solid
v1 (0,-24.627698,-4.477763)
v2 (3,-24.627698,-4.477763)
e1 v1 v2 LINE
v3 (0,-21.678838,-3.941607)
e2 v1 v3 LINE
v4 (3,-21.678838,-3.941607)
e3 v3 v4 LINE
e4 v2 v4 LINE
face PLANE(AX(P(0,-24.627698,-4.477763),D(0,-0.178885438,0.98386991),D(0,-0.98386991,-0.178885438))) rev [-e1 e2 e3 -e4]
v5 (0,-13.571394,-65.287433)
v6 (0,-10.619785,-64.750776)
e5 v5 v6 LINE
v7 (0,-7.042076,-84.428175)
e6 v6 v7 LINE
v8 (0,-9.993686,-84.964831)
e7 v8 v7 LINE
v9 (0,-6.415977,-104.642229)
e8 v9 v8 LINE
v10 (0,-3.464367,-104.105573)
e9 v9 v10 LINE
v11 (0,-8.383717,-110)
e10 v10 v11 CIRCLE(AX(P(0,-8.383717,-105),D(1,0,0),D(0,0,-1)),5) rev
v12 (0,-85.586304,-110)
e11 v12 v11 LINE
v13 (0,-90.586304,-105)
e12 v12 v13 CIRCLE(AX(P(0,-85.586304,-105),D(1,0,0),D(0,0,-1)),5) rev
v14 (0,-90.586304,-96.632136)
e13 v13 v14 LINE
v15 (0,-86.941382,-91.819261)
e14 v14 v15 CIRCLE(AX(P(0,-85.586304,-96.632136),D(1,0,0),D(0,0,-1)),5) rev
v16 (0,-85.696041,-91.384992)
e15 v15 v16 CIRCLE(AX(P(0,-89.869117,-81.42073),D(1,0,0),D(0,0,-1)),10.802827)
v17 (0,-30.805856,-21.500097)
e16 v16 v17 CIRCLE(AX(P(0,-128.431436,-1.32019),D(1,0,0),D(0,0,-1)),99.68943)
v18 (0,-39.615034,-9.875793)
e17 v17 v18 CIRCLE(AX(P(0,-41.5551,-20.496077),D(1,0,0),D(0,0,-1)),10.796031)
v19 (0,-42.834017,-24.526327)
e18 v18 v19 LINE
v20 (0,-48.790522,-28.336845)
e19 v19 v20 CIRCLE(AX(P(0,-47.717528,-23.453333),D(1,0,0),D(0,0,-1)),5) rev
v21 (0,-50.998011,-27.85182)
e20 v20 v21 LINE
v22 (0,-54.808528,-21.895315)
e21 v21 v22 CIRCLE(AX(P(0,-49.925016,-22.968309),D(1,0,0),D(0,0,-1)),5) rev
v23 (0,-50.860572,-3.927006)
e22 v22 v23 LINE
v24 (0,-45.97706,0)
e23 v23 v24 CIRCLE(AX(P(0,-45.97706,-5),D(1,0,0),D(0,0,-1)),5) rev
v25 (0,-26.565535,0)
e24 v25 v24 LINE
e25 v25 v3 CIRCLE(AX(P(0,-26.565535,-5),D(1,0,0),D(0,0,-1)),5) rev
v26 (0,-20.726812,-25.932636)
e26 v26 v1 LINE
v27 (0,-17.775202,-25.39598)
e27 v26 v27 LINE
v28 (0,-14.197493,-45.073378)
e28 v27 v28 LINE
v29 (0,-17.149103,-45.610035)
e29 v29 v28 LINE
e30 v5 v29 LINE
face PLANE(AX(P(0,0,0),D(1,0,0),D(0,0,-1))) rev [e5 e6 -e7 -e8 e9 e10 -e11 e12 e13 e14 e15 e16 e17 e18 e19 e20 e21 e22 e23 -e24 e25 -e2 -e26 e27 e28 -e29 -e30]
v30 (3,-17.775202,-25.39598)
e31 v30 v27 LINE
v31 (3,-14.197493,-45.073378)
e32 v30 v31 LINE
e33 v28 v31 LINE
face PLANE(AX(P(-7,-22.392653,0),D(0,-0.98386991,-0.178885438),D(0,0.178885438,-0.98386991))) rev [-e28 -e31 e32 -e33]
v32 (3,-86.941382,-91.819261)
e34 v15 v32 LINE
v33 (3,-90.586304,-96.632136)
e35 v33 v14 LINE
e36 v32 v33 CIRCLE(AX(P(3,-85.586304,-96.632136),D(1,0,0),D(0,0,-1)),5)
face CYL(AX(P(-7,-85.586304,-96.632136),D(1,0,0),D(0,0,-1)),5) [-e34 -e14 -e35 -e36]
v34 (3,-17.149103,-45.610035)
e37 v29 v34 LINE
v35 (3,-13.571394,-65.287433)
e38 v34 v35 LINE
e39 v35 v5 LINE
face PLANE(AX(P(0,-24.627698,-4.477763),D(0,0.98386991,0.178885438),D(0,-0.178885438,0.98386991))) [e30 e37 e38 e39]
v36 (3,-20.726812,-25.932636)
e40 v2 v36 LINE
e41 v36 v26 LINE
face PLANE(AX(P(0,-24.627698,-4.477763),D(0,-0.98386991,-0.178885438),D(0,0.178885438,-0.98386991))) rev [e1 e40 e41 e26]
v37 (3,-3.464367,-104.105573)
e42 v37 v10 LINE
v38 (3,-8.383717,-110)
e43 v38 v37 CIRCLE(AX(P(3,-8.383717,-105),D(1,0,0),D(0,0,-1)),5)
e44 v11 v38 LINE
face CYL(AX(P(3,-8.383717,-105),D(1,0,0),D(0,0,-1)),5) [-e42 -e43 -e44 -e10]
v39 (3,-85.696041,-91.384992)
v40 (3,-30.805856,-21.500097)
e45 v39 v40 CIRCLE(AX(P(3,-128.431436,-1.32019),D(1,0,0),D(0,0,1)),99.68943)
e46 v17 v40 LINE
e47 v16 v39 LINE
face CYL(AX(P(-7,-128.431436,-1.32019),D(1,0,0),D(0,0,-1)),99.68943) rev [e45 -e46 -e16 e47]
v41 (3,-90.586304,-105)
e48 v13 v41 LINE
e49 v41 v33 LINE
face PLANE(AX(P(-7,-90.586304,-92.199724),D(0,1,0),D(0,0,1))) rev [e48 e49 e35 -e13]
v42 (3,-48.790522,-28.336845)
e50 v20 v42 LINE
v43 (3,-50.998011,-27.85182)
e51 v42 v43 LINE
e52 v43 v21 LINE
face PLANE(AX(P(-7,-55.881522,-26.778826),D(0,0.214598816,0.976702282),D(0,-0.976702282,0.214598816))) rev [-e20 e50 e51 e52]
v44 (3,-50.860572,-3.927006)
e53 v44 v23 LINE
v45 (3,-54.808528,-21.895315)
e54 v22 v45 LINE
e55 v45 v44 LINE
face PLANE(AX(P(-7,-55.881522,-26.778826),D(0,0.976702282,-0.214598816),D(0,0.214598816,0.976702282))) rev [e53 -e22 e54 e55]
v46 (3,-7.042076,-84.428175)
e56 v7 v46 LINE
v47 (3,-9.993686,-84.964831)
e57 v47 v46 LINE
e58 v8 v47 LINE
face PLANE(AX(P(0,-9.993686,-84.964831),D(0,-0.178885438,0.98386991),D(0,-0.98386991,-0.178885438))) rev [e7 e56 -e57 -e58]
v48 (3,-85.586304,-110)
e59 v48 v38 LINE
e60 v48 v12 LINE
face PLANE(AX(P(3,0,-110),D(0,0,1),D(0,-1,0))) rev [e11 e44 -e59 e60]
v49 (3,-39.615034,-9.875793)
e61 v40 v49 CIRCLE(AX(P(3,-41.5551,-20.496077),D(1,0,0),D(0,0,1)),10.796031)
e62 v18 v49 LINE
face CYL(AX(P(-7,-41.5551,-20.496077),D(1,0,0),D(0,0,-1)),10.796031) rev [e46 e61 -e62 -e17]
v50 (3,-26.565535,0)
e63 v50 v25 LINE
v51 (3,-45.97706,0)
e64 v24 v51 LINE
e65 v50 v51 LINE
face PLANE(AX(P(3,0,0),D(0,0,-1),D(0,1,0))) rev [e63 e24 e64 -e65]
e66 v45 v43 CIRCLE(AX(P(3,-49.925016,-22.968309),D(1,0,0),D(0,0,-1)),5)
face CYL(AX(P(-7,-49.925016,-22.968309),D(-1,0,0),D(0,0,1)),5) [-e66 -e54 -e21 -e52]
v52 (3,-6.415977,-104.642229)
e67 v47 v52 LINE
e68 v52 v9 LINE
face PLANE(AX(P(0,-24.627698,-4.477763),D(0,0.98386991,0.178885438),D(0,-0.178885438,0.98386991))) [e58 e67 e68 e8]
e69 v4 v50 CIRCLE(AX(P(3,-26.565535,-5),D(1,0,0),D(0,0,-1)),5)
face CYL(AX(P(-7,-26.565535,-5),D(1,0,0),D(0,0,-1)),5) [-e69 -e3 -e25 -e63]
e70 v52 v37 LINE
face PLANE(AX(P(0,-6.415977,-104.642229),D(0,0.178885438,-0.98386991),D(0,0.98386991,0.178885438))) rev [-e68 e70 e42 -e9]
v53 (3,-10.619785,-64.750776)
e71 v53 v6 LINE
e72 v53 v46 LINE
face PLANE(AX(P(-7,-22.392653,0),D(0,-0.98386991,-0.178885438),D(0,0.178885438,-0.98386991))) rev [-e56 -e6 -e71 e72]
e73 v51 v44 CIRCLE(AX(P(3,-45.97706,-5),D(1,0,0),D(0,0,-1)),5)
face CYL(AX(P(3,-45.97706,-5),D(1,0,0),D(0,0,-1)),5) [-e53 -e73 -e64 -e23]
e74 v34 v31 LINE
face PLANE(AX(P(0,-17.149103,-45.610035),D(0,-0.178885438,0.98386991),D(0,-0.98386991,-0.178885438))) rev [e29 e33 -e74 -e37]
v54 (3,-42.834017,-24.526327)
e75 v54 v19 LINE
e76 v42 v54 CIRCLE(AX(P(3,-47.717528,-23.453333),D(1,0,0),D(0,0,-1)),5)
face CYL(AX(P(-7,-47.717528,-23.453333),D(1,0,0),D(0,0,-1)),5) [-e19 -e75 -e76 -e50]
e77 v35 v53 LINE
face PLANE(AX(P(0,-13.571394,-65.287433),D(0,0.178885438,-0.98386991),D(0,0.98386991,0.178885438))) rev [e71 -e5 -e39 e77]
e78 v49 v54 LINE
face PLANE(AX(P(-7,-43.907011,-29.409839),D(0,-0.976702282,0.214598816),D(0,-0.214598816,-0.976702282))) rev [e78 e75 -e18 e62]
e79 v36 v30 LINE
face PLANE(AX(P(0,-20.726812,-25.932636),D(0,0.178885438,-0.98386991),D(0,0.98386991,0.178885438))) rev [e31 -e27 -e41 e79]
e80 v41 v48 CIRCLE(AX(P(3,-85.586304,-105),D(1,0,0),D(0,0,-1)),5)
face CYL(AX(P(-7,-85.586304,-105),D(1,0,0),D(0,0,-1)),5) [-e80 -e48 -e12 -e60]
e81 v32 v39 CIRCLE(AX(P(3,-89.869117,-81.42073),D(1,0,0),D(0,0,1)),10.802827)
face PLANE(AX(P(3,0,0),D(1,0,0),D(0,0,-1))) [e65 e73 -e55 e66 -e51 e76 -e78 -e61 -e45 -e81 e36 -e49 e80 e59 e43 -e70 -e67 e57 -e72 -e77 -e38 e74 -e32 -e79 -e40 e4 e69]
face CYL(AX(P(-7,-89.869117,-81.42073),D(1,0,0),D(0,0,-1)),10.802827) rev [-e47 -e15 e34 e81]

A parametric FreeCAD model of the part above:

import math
import FreeCAD as App
import Part
import Sketcher
from FreeCAD import Vector
Q = App.Units.Quantity


def edges_at(feature, points):
    """Names of the edges that pass closest to the given points."""
    edges = feature.Shape.Edges
    near = lambda p: min(range(len(edges)), key=lambda i: edges[i].distToShape(Part.Vertex(*p))[0])
    return sorted({f"Edge{near(p) + 1}" for p in points})

doc = App.newDocument("Part")
params = doc.addObject("Spreadsheet::Sheet", "Params")
for row, (alias, value) in enumerate([
    ("sketch1_width", "110 mm"),
    ("pad1_length", "3 mm"),
    ("sketch2_length", "20 mm"),
    ("sketch2_length2", "20 mm"),
    ("pocket1_length", "10 mm"),
    ("sketch3_height", "110 mm"),
    ("pocket2_length", "10 mm"),
    ("pocket3_length", "10 mm"),
    ("fillet_radius", "5 mm"),
    ("sketch5_width", "3 mm"),
    ("sketch5_height", "20 mm"),
    ("pocket4_length", "3 mm"),
], start=1):
    params.set(f"A{row}", alias)
    params.set(f"B{row}", "=" + value)
    params.setAlias(f"B{row}", alias)

body = doc.addObject("PartDesign::Body", "Body")

sketch1 = body.newObject("Sketcher::SketchObject", "Sketch")
sketch1.AttachmentSupport = (doc.getObject("YZ_Plane"), [""])
sketch1.MapMode = "FlatFace"
sketch1.addGeometry([
    Part.LineSegment(Vector(0, 0, 0), Vector(-110, 0, 0)),
    Part.LineSegment(Vector(-110, 0, 0), Vector(-110, -110, 0)),
    Part.LineSegment(Vector(-110, -110, 0), Vector(0, -110, 0)),
    Part.LineSegment(Vector(0, -110, 0), Vector(0, 0, 0)),
], False)
sketch1.addConstraint([
    Sketcher.Constraint("Coincident", 0, 2, 1, 1),
    Sketcher.Constraint("Coincident", 1, 2, 2, 1),
    Sketcher.Constraint("Coincident", 2, 2, 3, 1),
    Sketcher.Constraint("Coincident", 3, 2, 0, 1),
    Sketcher.Constraint("Horizontal", 0),
    Sketcher.Constraint("Vertical", 1),
    Sketcher.Constraint("Horizontal", 2),
    Sketcher.Constraint("Vertical", 3),
    Sketcher.Constraint("Coincident", 3, 2, -1, 1),
    Sketcher.Constraint("Equal", 2, 1),
    Sketcher.Constraint("DistanceX", 0, 2, 0, 1, Q("110 mm")),
])
sketch1.setExpression("Constraints[10]", "Params.sketch1_width")
pad1 = body.newObject("PartDesign::Pad", "Pad")
pad1.Profile = sketch1
pad1.setExpression("Length", "Params.pad1_length")

sketch2 = body.newObject("Sketcher::SketchObject", "Sketch001")
sketch2.AttachmentSupport = (doc.getObject("YZ_Plane"), [""])
sketch2.MapMode = "FlatFace"
sketch2.AttachmentOffset = App.Placement(Vector(0, 0, 3), App.Rotation())
sketch2.addGeometry([
    Part.LineSegment(Vector(-39.615034, -9.875793, 0), Vector(-43.907011, -29.409839, 0)),
    Part.LineSegment(Vector(-43.907011, -29.409839, 0), Vector(-67.856033, -24.147814, 0)),
    Part.LineSegment(Vector(-67.856033, -24.147814, 0), Vector(-63.564057, -4.613768, 0)),
    Part.ArcOfCircle(Part.Circle(Vector(-62.98697, -0.12815, 0), Vector(0, 0, 1), 4.522587), math.radians(-138.183465), math.radians(-97.330994)),
    Part.LineSegment(Vector(-66.35758, -3.143574, 0), Vector(-69.727563, 0, 0)),
    Part.LineSegment(Vector(-69.727563, 0, 0), Vector(-110, 0, 0)),
    Part.LineSegment(Vector(-110, 0, 0), Vector(-110, -79.448988, 0)),
    Part.LineSegment(Vector(-110, -79.448988, 0), Vector(-107.820216, -80.864556, 0)),
    Part.LineSegment(Vector(-107.820216, -80.864556, 0), Vector(-95.325519, -90.744288, 0)),
    Part.ArcOfCircle(Part.Circle(Vector(-89.869117, -81.42073, 0), Vector(0, 0, 1), 10.802827), math.radians(-120.337346), math.radians(-67.275854)),
    Part.ArcOfCircle(Part.Circle(Vector(-128.431436, -1.32019, 0), Vector(0, 0, 1), 99.68943), math.radians(-64.615844), math.radians(-11.678963)),
    Part.ArcOfCircle(Part.Circle(Vector(-41.5551, -20.496077, 0), Vector(0, 0, 1), 10.796031), math.radians(-5.336159), math.radians(79.647613)),
], False)
sketch2.addConstraint([
    Sketcher.Constraint("Coincident", 0, 2, 1, 1),
    Sketcher.Constraint("Coincident", 1, 2, 2, 1),
    Sketcher.Constraint("Coincident", 2, 2, 3, 2),
    Sketcher.Constraint("Coincident", 3, 1, 4, 1),
    Sketcher.Constraint("Coincident", 4, 2, 5, 1),
    Sketcher.Constraint("Coincident", 5, 2, 6, 1),
    Sketcher.Constraint("Coincident", 6, 2, 7, 1),
    Sketcher.Constraint("Coincident", 7, 2, 8, 1),
    Sketcher.Constraint("Coincident", 8, 2, 9, 1),
    Sketcher.Constraint("Coincident", 9, 2, 10, 1),
    Sketcher.Constraint("Coincident", 10, 2, 11, 1),
    Sketcher.Constraint("Coincident", 11, 2, 0, 1),
    Sketcher.Constraint("Horizontal", 5),
    Sketcher.Constraint("Vertical", 6),
    Sketcher.Constraint("PointOnObject", 4, 2, -1),
    Sketcher.Constraint("Distance", 0, Q("20 mm")),
    Sketcher.Constraint("Distance", 2, Q("20 mm")),
    Sketcher.Constraint("DistanceX", 5, 2, -1, 1, Q("110 mm")),
    Sketcher.Constraint("Radius", 10, Q("99.68943 mm")),
    Sketcher.Constraint("Radius", 11, Q("10.796031 mm")),
    Sketcher.Constraint("Radius", 3, Q("4.522587 mm")),
    Sketcher.Constraint("Radius", 9, Q("10.802827 mm")),
    Sketcher.Constraint("DistanceY", 6, 2, 6, 1, Q("79.448988 mm")),
    Sketcher.Constraint("DistanceX", 11, 3, -1, 1, Q("41.5551 mm")),
    Sketcher.Constraint("DistanceY", 6, 2, 10, 3, Q("78.128798 mm")),
    Sketcher.Constraint("DistanceX", 7, 2, 9, 3, Q("17.9511 mm")),
    Sketcher.Constraint("DistanceY", 8, 2, 6, 2, Q("11.2953 mm")),
    Sketcher.Constraint("DistanceX", 2, 2, 10, 2, Q("32.758201 mm")),
    Sketcher.Constraint("Distance", 1, Q("24.52029 mm")),
    Sketcher.Constraint("DistanceX", 5, 2, 5, 1, Q("40.272437 mm")),
    Sketcher.Constraint("DistanceX", 3, 3, -1, 1, Q("62.98697 mm")),
    Sketcher.Constraint("DistanceY", 3, 3, -1, 1, Q("0.12815 mm")),
    Sketcher.Constraint("DistanceY", 9, 3, -1, 1, Q("81.42073 mm")),
    Sketcher.Constraint("DistanceX", 0, 2, -1, 1, Q("43.907011 mm")),
    Sketcher.Constraint("DistanceY", 0, 2, -1, 1, Q("29.409839 mm")),
    Sketcher.Constraint("DistanceX", 3, 1, -1, 1, Q("66.35758 mm")),
    Sketcher.Constraint("DistanceX", 8, 2, -1, 1, Q("95.325519 mm")),
    Sketcher.Constraint("DistanceX", 9, 2, -1, 1, Q("85.696041 mm")),
    Sketcher.Constraint("DistanceY", 0, 2, 11, 3, Q("8.913761 mm")),
    Sketcher.Constraint("DistanceY", 7, 2, 6, 2, Q("1.415568 mm")),
])
sketch2.setExpression("Constraints[15]", "Params.sketch2_length")
sketch2.setExpression("Constraints[16]", "Params.sketch2_length2")
pocket1 = body.newObject("PartDesign::Pocket", "Pocket")
pocket1.Profile = sketch2
pocket1.setExpression("Length", "Params.pocket1_length")

sketch3 = body.newObject("Sketcher::SketchObject", "Sketch002")
sketch3.AttachmentSupport = (doc.getObject("YZ_Plane"), [""])
sketch3.MapMode = "FlatFace"
sketch3.AttachmentOffset = App.Placement(Vector(0, 0, 3), App.Rotation())
sketch3.addGeometry([
    Part.LineSegment(Vector(-55.881522, -26.778826, 0), Vector(-49.997739, 0, 0)),
    Part.LineSegment(Vector(-49.997739, 0, 0), Vector(-22.392653, 0, 0)),
    Part.LineSegment(Vector(-22.392653, 0, 0), Vector(-2.392653, -110, 0)),
    Part.LineSegment(Vector(-2.392653, -110, 0), Vector(0, -110, 0)),
    Part.LineSegment(Vector(0, -110, 0), Vector(0, 0, 0)),
    Part.LineSegment(Vector(0, 0, 0), Vector(-25.168254, 15.446531, 0)),
    Part.LineSegment(Vector(-25.168254, 15.446531, 0), Vector(-70.308603, 7.239195, 0)),
    Part.LineSegment(Vector(-70.308603, 7.239195, 0), Vector(-69.727563, 0, 0)),
    Part.LineSegment(Vector(-69.727563, 0, 0), Vector(-73.688952, -28.662259, 0)),
    Part.LineSegment(Vector(-73.688952, -28.662259, 0), Vector(-55.881522, -31.12341, 0)),
    Part.LineSegment(Vector(-55.881522, -31.12341, 0), Vector(-55.881522, -26.778826, 0)),
], False)
sketch3.addConstraint([
    Sketcher.Constraint("Coincident", 0, 2, 1, 1),
    Sketcher.Constraint("Coincident", 1, 2, 2, 1),
    Sketcher.Constraint("Coincident", 2, 2, 3, 1),
    Sketcher.Constraint("Coincident", 3, 2, 4, 1),
    Sketcher.Constraint("Coincident", 4, 2, 5, 1),
    Sketcher.Constraint("Coincident", 5, 2, 6, 1),
    Sketcher.Constraint("Coincident", 6, 2, 7, 1),
    Sketcher.Constraint("Coincident", 7, 2, 8, 1),
    Sketcher.Constraint("Coincident", 8, 2, 9, 1),
    Sketcher.Constraint("Coincident", 9, 2, 10, 1),
    Sketcher.Constraint("Coincident", 10, 2, 0, 1),
    Sketcher.Constraint("Horizontal", 1),
    Sketcher.Constraint("Horizontal", 3),
    Sketcher.Constraint("Vertical", 4),
    Sketcher.Constraint("Vertical", 10),
    Sketcher.Constraint("Coincident", 4, 2, -1, 1),
    Sketcher.Constraint("PointOnObject", 0, 2, -1),
    Sketcher.Constraint("PointOnObject", 7, 2, -1),
    Sketcher.Constraint("Perpendicular", 2, 6),
    Sketcher.Constraint("Perpendicular", 8, 9),
    Sketcher.Constraint("DistanceY", 4, 1, 4, 2, Q("110 mm")),
    Sketcher.Constraint("DistanceX", 1, 2, 2, 2, Q("20 mm")),
    Sketcher.Constraint("Distance", 9, Q("17.976702 mm")),
    Sketcher.Constraint("DistanceX", 5, 2, 1, 2, Q("2.775601 mm")),
    Sketcher.Constraint("DistanceX", 8, 2, 1, 2, Q("51.296298 mm")),
    Sketcher.Constraint("Distance", 5, Q("29.530261 mm")),
    Sketcher.Constraint("DistanceX", 1, 1, 1, 2, Q("27.605086 mm")),
    Sketcher.Constraint("DistanceX", 3, 1, 3, 2, Q("2.392653 mm")),
    Sketcher.Constraint("DistanceY", 10, 1, 10, 2, Q("4.344584 mm")),
    Sketcher.Constraint("DistanceY", 8, 2, -1, 1, Q("28.662259 mm")),
    Sketcher.Constraint("DistanceX", 9, 2, -1, 1, Q("55.881522 mm")),
    Sketcher.Constraint("DistanceX", 6, 2, 5, 2, Q("45.140349 mm")),
])
sketch3.setExpression("Constraints[20]", "Params.sketch3_height")
pocket2 = body.newObject("PartDesign::Pocket", "Pocket001")
pocket2.Profile = sketch3
pocket2.setExpression("Length", "Params.pocket2_length")

sketch4 = body.newObject("Sketcher::SketchObject", "Sketch003")
sketch4.AttachmentSupport = (doc.getObject("YZ_Plane"), [""])
sketch4.MapMode = "FlatFace"
sketch4.AttachmentOffset = App.Placement(Vector(0, 0, 3), App.Rotation())
sketch4.addGeometry([
    Part.LineSegment(Vector(-90.586304, -110, 0), Vector(-90.586304, -92.199724, 0)),
    Part.LineSegment(Vector(-90.586304, -92.199724, 0), Vector(-97.250185, -77.620591, 0)),
    Part.LineSegment(Vector(-97.250185, -77.620591, 0), Vector(-115.722674, -68.110039, 0)),
    Part.LineSegment(Vector(-115.722674, -68.110039, 0), Vector(-118.868174, -92.199724, 0)),
    Part.LineSegment(Vector(-118.868174, -92.199724, 0), Vector(-112.577173, -115.849677, 0)),
    Part.LineSegment(Vector(-112.577173, -115.849677, 0), Vector(-90.586304, -110, 0)),
], False)
sketch4.addConstraint([
    Sketcher.Constraint("Coincident", 0, 2, 1, 1),
    Sketcher.Constraint("Coincident", 1, 2, 2, 1),
    Sketcher.Constraint("Coincident", 2, 2, 3, 1),
    Sketcher.Constraint("Coincident", 3, 2, 4, 1),
    Sketcher.Constraint("Coincident", 4, 2, 5, 1),
    Sketcher.Constraint("Coincident", 5, 2, 0, 1),
    Sketcher.Constraint("Vertical", 0),
    Sketcher.Constraint("Perpendicular", 4, 5),
    Sketcher.Constraint("Horizontal", 0, 2, 3, 2),
    Sketcher.Constraint("DistanceY", 5, 2, -1, 1, Q("110 mm")),
    Sketcher.Constraint("DistanceX", 3, 2, 4, 2, Q("6.291 mm")),
    Sketcher.Constraint("DistanceX", 3, 2, 2, 2, Q("3.1455 mm")),
    Sketcher.Constraint("Distance", 3, Q("24.294178 mm")),
    Sketcher.Constraint("Distance", 4, Q("24.472371 mm")),
    Sketcher.Constraint("DistanceY", 0, 1, 0, 2, Q("17.800276 mm")),
    Sketcher.Constraint("DistanceY", 1, 2, -1, 1, Q("77.620591 mm")),
    Sketcher.Constraint("DistanceX", 1, 2, 0, 2, Q("6.663882 mm")),
    Sketcher.Constraint("DistanceX", 0, 2, -1, 1, Q("90.586304 mm")),
])
pocket3 = body.newObject("PartDesign::Pocket", "Pocket002")
pocket3.Profile = sketch4
pocket3.setExpression("Length", "Params.pocket3_length")
doc.recompute()

fillet = body.newObject("PartDesign::Fillet", "Fillet")
fillet.Base = (pocket3, edges_at(pocket3, [
    (1.5, -90.586, -92.2),
    (1.5, -90.586, -110),
    (1.5, -43.907, -29.41),
    (1.5, -55.882, -26.779),
    (1.5, -2.393, -110),
    (1.5, -22.393, 0),
    (1.5, -49.998, 0),
]))
fillet.setExpression("Radius", "Params.fillet_radius")

sketch5 = body.newObject("Sketcher::SketchObject", "Sketch004")
sketch5.Placement = App.Placement(Vector(0, -21.676088, -3.941107), App.Rotation(Vector(1, 0, 0), Vector(0, 0.178885438, -0.98386991), Vector(0, 0.98386991, 0.178885438), "ZXY"))
sketch5.addGeometry([
    Part.LineSegment(Vector(0, 101.806616, 0), Vector(0, 81.806616, 0)),
    Part.LineSegment(Vector(0, 81.806616, 0), Vector(3, 81.806616, 0)),
    Part.LineSegment(Vector(3, 81.806616, 0), Vector(3, 101.806616, 0)),
    Part.LineSegment(Vector(3, 101.806616, 0), Vector(0, 101.806616, 0)),
    Part.LineSegment(Vector(0, 61.806616, 0), Vector(0, 41.806616, 0)),
    Part.LineSegment(Vector(0, 41.806616, 0), Vector(3, 41.806616, 0)),
    Part.LineSegment(Vector(3, 41.806616, 0), Vector(3, 61.806616, 0)),
    Part.LineSegment(Vector(3, 61.806616, 0), Vector(0, 61.806616, 0)),
    Part.LineSegment(Vector(0, 21.806616, 0), Vector(0, 0, 0)),
    Part.LineSegment(Vector(0, 0, 0), Vector(3, 0, 0)),
    Part.LineSegment(Vector(3, 0, 0), Vector(3, 21.806616, 0)),
    Part.LineSegment(Vector(3, 21.806616, 0), Vector(0, 21.806616, 0)),
], False)
sketch5.addConstraint([
    Sketcher.Constraint("Coincident", 0, 2, 1, 1),
    Sketcher.Constraint("Coincident", 1, 2, 2, 1),
    Sketcher.Constraint("Coincident", 2, 2, 3, 1),
    Sketcher.Constraint("Coincident", 3, 2, 0, 1),
    Sketcher.Constraint("Coincident", 4, 2, 5, 1),
    Sketcher.Constraint("Coincident", 5, 2, 6, 1),
    Sketcher.Constraint("Coincident", 6, 2, 7, 1),
    Sketcher.Constraint("Coincident", 7, 2, 4, 1),
    Sketcher.Constraint("Coincident", 8, 2, 9, 1),
    Sketcher.Constraint("Coincident", 9, 2, 10, 1),
    Sketcher.Constraint("Coincident", 10, 2, 11, 1),
    Sketcher.Constraint("Coincident", 11, 2, 8, 1),
    Sketcher.Constraint("Vertical", 0),
    Sketcher.Constraint("Horizontal", 1),
    Sketcher.Constraint("Vertical", 2),
    Sketcher.Constraint("Horizontal", 3),
    Sketcher.Constraint("Vertical", 4),
    Sketcher.Constraint("Horizontal", 5),
    Sketcher.Constraint("Vertical", 6),
    Sketcher.Constraint("Horizontal", 7),
    Sketcher.Constraint("Vertical", 8),
    Sketcher.Constraint("Horizontal", 9),
    Sketcher.Constraint("Vertical", 10),
    Sketcher.Constraint("Horizontal", 11),
    Sketcher.Constraint("Coincident", 8, 2, -1, 1),
    Sketcher.Constraint("PointOnObject", 0, 2, -2),
    Sketcher.Constraint("PointOnObject", 4, 2, -2),
    Sketcher.Constraint("Vertical", 2, 2, 5, 2),
    Sketcher.Constraint("Vertical", 6, 2, 9, 2),
    Sketcher.Constraint("Equal", 2, 4),
    Sketcher.Constraint("DistanceX", 1, 1, 1, 2, Q("3 mm")),
    Sketcher.Constraint("DistanceY", 0, 2, 0, 1, Q("20 mm")),
    Sketcher.Constraint("DistanceY", 4, 2, 0, 2, Q("40 mm")),
    Sketcher.Constraint("DistanceY", 10, 2, 5, 2, Q("20 mm")),
    Sketcher.Constraint("DistanceY", 8, 2, 8, 1, Q("21.806616 mm")),
])
sketch5.setExpression("Constraints[30]", "Params.sketch5_width")
sketch5.setExpression("Constraints[31]", "Params.sketch5_height")
pocket4 = body.newObject("PartDesign::Pocket", "Pocket003")
pocket4.Profile = sketch5
pocket4.setExpression("Length", "Params.pocket4_length")

doc.recompute()
